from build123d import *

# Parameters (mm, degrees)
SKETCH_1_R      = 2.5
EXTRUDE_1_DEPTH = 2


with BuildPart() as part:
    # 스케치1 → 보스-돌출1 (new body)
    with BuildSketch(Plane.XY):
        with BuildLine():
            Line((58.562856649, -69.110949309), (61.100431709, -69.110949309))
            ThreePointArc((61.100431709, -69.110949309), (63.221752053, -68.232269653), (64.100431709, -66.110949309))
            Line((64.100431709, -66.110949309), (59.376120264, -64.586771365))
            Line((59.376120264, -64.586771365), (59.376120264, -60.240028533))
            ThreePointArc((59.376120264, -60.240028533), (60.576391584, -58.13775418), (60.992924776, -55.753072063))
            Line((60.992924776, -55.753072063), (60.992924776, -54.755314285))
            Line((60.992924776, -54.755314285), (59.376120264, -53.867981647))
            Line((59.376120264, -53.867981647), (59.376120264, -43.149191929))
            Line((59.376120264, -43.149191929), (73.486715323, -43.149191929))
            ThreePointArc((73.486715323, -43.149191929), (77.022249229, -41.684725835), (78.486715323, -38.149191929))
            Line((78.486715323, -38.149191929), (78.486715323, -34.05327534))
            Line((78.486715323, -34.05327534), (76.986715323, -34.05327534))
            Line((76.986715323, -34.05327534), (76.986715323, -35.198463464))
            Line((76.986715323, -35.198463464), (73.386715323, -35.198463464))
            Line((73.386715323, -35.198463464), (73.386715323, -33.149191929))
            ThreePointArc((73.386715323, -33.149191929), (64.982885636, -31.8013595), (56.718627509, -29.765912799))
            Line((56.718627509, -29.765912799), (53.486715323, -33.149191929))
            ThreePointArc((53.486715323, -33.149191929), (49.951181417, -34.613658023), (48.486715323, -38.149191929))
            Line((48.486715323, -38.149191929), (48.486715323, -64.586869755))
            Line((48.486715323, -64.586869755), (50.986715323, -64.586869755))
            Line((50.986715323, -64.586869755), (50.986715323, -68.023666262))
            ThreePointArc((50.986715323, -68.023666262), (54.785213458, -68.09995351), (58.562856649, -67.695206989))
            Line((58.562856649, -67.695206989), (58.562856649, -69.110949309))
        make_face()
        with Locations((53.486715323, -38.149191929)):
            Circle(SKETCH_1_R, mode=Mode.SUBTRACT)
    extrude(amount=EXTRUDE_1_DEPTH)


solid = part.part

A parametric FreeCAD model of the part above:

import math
import FreeCAD as App
import Part
import Sketcher
from FreeCAD import Vector
Q = App.Units.Quantity

doc = App.newDocument("Part")
body = doc.addObject("PartDesign::Body", "Body")

# Sketch on XY plane
sketch1 = doc.addObject("Sketcher::SketchObject", "Sketch")
body.addObject(sketch1)
sketch1.AttachmentSupport = (doc.XY_Plane, [""])
sketch1.MapMode = "FlatFace"
sketch1.addGeometry(Part.LineSegment(Vector(58.6, -69.1, 0), Vector(61.1, -69.1, 0)), False)
sketch1.addGeometry(Part.ArcOfCircle(Part.Circle(Vector(61.1, -66.1, 0), Vector(0, 0, 1), 3), math.radians(-90), math.radians(0)), False)
sketch1.addGeometry(Part.LineSegment(Vector(64.1, -66.1, 0), Vector(59.4, -64.6, 0)), False)
sketch1.addGeometry(Part.LineSegment(Vector(59.4, -64.6, 0), Vector(59.4, -60.2, 0)), False)
sketch1.addGeometry(Part.ArcOfCircle(Part.Circle(Vector(54, -55.8, 0), Vector(0, 0, 1), 7), math.radians(-40), math.radians(0)), False)
sketch1.addGeometry(Part.LineSegment(Vector(61, -55.8, 0), Vector(61, -54.8, 0)), False)
sketch1.addGeometry(Part.LineSegment(Vector(61, -54.8, 0), Vector(59.4, -53.9, 0)), False)
sketch1.addGeometry(Part.LineSegment(Vector(59.4, -53.9, 0), Vector(59.4, -43.1, 0)), False)
sketch1.addGeometry(Part.LineSegment(Vector(59.4, -43.1, 0), Vector(73.5, -43.1, 0)), False)
sketch1.addGeometry(Part.ArcOfCircle(Part.Circle(Vector(73.5, -38.1, 0), Vector(0, 0, 1), 5), math.radians(-90), math.radians(0)), False)
sketch1.addGeometry(Part.LineSegment(Vector(78.5, -38.1, 0), Vector(78.5, -34.1, 0)), False)
sketch1.addGeometry(Part.LineSegment(Vector(78.5, -34.1, 0), Vector(77, -34.1, 0)), False)
sketch1.addGeometry(Part.LineSegment(Vector(77, -34.1, 0), Vector(77, -35.2, 0)), False)
sketch1.addGeometry(Part.LineSegment(Vector(77, -35.2, 0), Vector(73.4, -35.2, 0)), False)
sketch1.addGeometry(Part.LineSegment(Vector(73.4, -35.2, 0), Vector(73.4, -33.1, 0)), False)
sketch1.addGeometry(Part.ArcOfCircle(Part.Circle(Vector(85.5, 69.4, 0), Vector(0, 0, 1), 103.2), math.radians(-106.2), math.radians(-96.75)), False)
sketch1.addGeometry(Part.LineSegment(Vector(56.7, -29.8, 0), Vector(53.5, -33.1, 0)), False)
sketch1.addGeometry(Part.ArcOfCircle(Part.Circle(Vector(53.5, -38.1, 0), Vector(0, 0, 1), 5), math.radians(90), math.radians(180)), False)
sketch1.addGeometry(Part.LineSegment(Vector(48.5, -38.1, 0), Vector(48.5, -64.6, 0)), False)
sketch1.addGeometry(Part.LineSegment(Vector(48.5, -64.6, 0), Vector(51, -64.6, 0)), False)
sketch1.addGeometry(Part.LineSegment(Vector(51, -64.6, 0), Vector(51, -68, 0)), False)
sketch1.addGeometry(Part.ArcOfCircle(Part.Circle(Vector(53.5, -38.1, 0), Vector(0, 0, 1), 30), math.radians(-94.78), math.radians(-80.25)), False)
sketch1.addGeometry(Part.LineSegment(Vector(58.6, -67.7, 0), Vector(58.6, -69.1, 0)), False)
sketch1.addGeometry(Part.Circle(Vector(53.5, -38.1, 0), Vector(0, 0, 1), 2.5), False)
sketch1.addConstraint(Sketcher.Constraint("Tangent", 0, 2, 1, 1))
sketch1.addConstraint(Sketcher.Constraint("Coincident", 1, 2, 2, 1))
sketch1.addConstraint(Sketcher.Constraint("Coincident", 2, 2, 3, 1))
sketch1.addConstraint(Sketcher.Constraint("Coincident", 3, 2, 4, 1))
sketch1.addConstraint(Sketcher.Constraint("Tangent", 4, 2, 5, 1))
sketch1.addConstraint(Sketcher.Constraint("Coincident", 5, 2, 6, 1))
sketch1.addConstraint(Sketcher.Constraint("Coincident", 6, 2, 7, 1))
sketch1.addConstraint(Sketcher.Constraint("Coincident", 7, 2, 8, 1))
sketch1.addConstraint(Sketcher.Constraint("Tangent", 8, 2, 9, 1))
sketch1.addConstraint(Sketcher.Constraint("Tangent", 9, 2, 10, 1))
sketch1.addConstraint(Sketcher.Constraint("Coincident", 10, 2, 11, 1))
sketch1.addConstraint(Sketcher.Constraint("Coincident", 11, 2, 12, 1))
sketch1.addConstraint(Sketcher.Constraint("Coincident", 12, 2, 13, 1))
sketch1.addConstraint(Sketcher.Constraint("Coincident", 13, 2, 14, 1))
sketch1.addConstraint(Sketcher.Constraint("Coincident", 14, 2, 15, 2))
sketch1.addConstraint(Sketcher.Constraint("Coincident", 15, 1, 16, 1))
sketch1.addConstraint(Sketcher.Constraint("Coincident", 16, 2, 17, 1))
sketch1.addConstraint(Sketcher.Constraint("Tangent", 17, 2, 18, 1))
sketch1.addConstraint(Sketcher.Constraint("Coincident", 18, 2, 19, 1))
sketch1.addConstraint(Sketcher.Constraint("Coincident", 19, 2, 20, 1))
sketch1.addConstraint(Sketcher.Constraint("Coincident", 20, 2, 21, 1))
sketch1.addConstraint(Sketcher.Constraint("Coincident", 21, 2, 22, 1))
sketch1.addConstraint(Sketcher.Constraint("Coincident", 22, 2, 0, 1))
sketch1.addConstraint(Sketcher.Constraint("Horizontal", 0))
sketch1.addConstraint(Sketcher.Constraint("Vertical", 3))
sketch1.addConstraint(Sketcher.Constraint("Vertical", 5))
sketch1.addConstraint(Sketcher.Constraint("Vertical", 7))
sketch1.addConstraint(Sketcher.Constraint("Horizontal", 8))
sketch1.addConstraint(Sketcher.Constraint("Vertical", 10))
sketch1.addConstraint(Sketcher.Constraint("Horizontal", 11))
sketch1.addConstraint(Sketcher.Constraint("Vertical", 12))
sketch1.addConstraint(Sketcher.Constraint("Horizontal", 13))
sketch1.addConstraint(Sketcher.Constraint("Vertical", 14))
sketch1.addConstraint(Sketcher.Constraint("Vertical", 18))
sketch1.addConstraint(Sketcher.Constraint("Horizontal", 19))
sketch1.addConstraint(Sketcher.Constraint("Vertical", 20))
sketch1.addConstraint(Sketcher.Constraint("Vertical", 22))
sketch1.addConstraint(Sketcher.Constraint("Coincident", 21, 3, 17, 3))
sketch1.addConstraint(Sketcher.Constraint("Coincident", 23, 3, 17, 3))
sketch1.addConstraint(Sketcher.Constraint("Equal", 9, 17))
sketch1.addConstraint(Sketcher.Constraint("Horizontal", 9, 3, 17, 3))
sketch1.addConstraint(Sketcher.Constraint("Horizontal", 14, 2, 16, 2))
sketch1.addConstraint(Sketcher.Constraint("Vertical", 3, 2, 6, 2))
sketch1.addConstraint(Sketcher.Constraint("Vertical", 23, 3, 16, 2))
sketch1.addConstraint(Sketcher.Constraint("Diameter", 23, Q("5 mm")))
sketch1.addConstraint(Sketcher.Constraint("Radius", 1, Q("3 mm")))
sketch1.addConstraint(Sketcher.Constraint("Radius", 9, Q("5 mm")))
sketch1.addConstraint(Sketcher.Constraint("DistanceX", 11, 2, 11, 1, Q("1.5 mm")))
sketch1.addConstraint(Sketcher.Constraint("DistanceX", 13, 2, 13, 1, Q("3.6 mm")))
sketch1.addConstraint(Sketcher.Constraint("DistanceX", 19, 1, 19, 2, Q("2.5 mm")))
sketch1.addConstraint(Sketcher.Constraint("DistanceX", 17, 3, 9, 3, Q("20 mm")))
sketch1.addConstraint(Sketcher.Constraint("DistanceY", 0, 2, 1, 2, Q("3 mm")))
sketch1.addConstraint(Sketcher.Constraint("Radius", 4, Q("7.034504 mm")))
sketch1.addConstraint(Sketcher.Constraint("Radius", 15, Q("103.245795 mm")))
sketch1.addConstraint(Sketcher.Constraint("Radius", 21, Q("29.978896 mm")))
sketch1.addConstraint(Sketcher.Constraint("DistanceY", 7, 1, 7, 2, Q("10.71879 mm")))
sketch1.addConstraint(Sketcher.Constraint("DistanceY", 12, 2, 12, 1, Q("1.145188 mm")))
sketch1.addConstraint(Sketcher.Constraint("DistanceY", 14, 1, 14, 2, Q("2.049272 mm")))
sketch1.addConstraint(Sketcher.Constraint("DistanceX", 4, 3, 2, 2, Q("5.417699 mm")))
sketch1.addConstraint(Sketcher.Constraint("DistanceY", 2, 2, 4, 3, Q("8.833699 mm")))
sketch1.addConstraint(Sketcher.Constraint("Distance", 16, Q("4.678871 mm")))
sketch1.addConstraint(Sketcher.Constraint("DistanceX", 0, 1, 0, 2, Q("2.537575 mm")))
sketch1.addConstraint(Sketcher.Constraint("DistanceX", 8, 1, 8, 2, Q("14.110595 mm")))
sketch1.addConstraint(Sketcher.Constraint("DistanceY", 5, 1, 5, 2, Q("0.997758 mm")))
sketch1.addConstraint(Sketcher.Constraint("DistanceY", 18, 2, 18, 1, Q("26.437678 mm")))
sketch1.addConstraint(Sketcher.Constraint("DistanceY", 22, 2, 22, 1, Q("1.415742 mm")))
sketch1.addConstraint(Sketcher.Constraint("DistanceX", -1, 1, 1, 3, Q("61.100432 mm")))
sketch1.addConstraint(Sketcher.Constraint("DistanceY", 1, 3, -1, 1, Q("66.110949 mm")))
sketch1.addConstraint(Sketcher.Constraint("DistanceX", -1, 1, 4, 3, Q("53.958421 mm")))
sketch1.addConstraint(Sketcher.Constraint("DistanceX", -1, 1, 15, 3, Q("85.520841 mm")))
sketch1.addConstraint(Sketcher.Constraint("DistanceY", 2, 2, -1, 1, Q("64.586771 mm")))
pad1 = doc.addObject("PartDesign::Pad", "Pad")
body.addObject(pad1)
pad1.Profile = sketch1
pad1.Length = 2

doc.recompute()
